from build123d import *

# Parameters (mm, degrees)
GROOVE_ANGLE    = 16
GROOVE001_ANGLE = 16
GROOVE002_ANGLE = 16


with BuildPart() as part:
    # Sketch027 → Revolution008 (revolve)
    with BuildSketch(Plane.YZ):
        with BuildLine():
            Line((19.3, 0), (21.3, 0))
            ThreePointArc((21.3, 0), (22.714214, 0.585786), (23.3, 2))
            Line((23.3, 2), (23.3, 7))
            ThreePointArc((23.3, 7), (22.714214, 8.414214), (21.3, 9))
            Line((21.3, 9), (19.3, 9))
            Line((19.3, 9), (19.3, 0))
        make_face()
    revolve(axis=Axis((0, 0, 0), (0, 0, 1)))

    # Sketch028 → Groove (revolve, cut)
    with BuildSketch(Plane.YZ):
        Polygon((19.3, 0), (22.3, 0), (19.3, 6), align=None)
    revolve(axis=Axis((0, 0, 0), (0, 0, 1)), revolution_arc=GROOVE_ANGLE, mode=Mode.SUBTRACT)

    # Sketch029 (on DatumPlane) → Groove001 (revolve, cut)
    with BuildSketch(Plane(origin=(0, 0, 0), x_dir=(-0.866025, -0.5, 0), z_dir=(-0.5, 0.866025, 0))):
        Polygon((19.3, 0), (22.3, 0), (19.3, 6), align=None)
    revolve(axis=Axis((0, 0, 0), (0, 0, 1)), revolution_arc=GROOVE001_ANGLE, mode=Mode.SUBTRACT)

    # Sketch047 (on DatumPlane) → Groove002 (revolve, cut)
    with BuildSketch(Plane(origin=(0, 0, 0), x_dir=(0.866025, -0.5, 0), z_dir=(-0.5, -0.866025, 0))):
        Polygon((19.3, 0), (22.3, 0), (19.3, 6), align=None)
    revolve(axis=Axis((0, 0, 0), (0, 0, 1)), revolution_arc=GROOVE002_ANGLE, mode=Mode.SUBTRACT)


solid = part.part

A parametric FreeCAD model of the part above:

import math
import FreeCAD as App
import Part
import Sketcher
from FreeCAD import Vector

doc = App.newDocument("Part")
body = doc.addObject("PartDesign::Body", "Body")

sketch1 = body.newObject("Sketcher::SketchObject", "Sketch")
sketch1.AttachmentSupport = (doc.getObject("YZ_Plane"), [""])
sketch1.MapMode = "FlatFace"
sketch1.addGeometry([
    Part.LineSegment(Vector(19.3, 0, 0), Vector(21.3, 0, 0)),
    Part.ArcOfCircle(Part.Circle(Vector(21.300001, 1.999999, 0), Vector(0, 0, 1), 1.999999), math.radians(-90.000043), math.radians(0.000043)),
    Part.LineSegment(Vector(23.3, 2, 0), Vector(23.3, 7, 0)),
    Part.ArcOfCircle(Part.Circle(Vector(21.300001, 7.000001, 0), Vector(0, 0, 1), 1.999999), math.radians(-0.000043), math.radians(90.000043)),
    Part.LineSegment(Vector(21.3, 9, 0), Vector(19.3, 9, 0)),
    Part.LineSegment(Vector(19.3, 9, 0), Vector(19.3, 0, 0)),
], False)
sketch1.addConstraint([
    Sketcher.Constraint("Tangent", 0, 2, 1, 1),
    Sketcher.Constraint("Tangent", 1, 2, 2, 1),
    Sketcher.Constraint("Tangent", 2, 2, 3, 1),
    Sketcher.Constraint("Tangent", 3, 2, 4, 1),
    Sketcher.Constraint("Coincident", 4, 2, 5, 1),
    Sketcher.Constraint("Coincident", 5, 2, 0, 1),
    Sketcher.Constraint("Horizontal", 0),
    Sketcher.Constraint("Vertical", 2),
    Sketcher.Constraint("Horizontal", 4),
    Sketcher.Constraint("Vertical", 5),
    Sketcher.Constraint("Equal", 1, 3),
    Sketcher.Constraint("PointOnObject", 0, 2, -1),
    Sketcher.Constraint("Radius", 1, 1.999999),
    Sketcher.Constraint("DistanceX", 0, 1, 0, 2, 2.0),
    Sketcher.Constraint("DistanceY", 2, 1, 2, 2, 5.0),
    Sketcher.Constraint("DistanceX", -1, 1, 1, 3, 21.300001),
])
revolution = body.newObject("PartDesign::Revolution", "Revolution")
revolution.Profile = sketch1
revolution.ReferenceAxis = (sketch1, ["V_Axis"])
revolution.Angle = 360

sketch2 = body.newObject("Sketcher::SketchObject", "Sketch001")
sketch2.AttachmentSupport = (doc.getObject("YZ_Plane"), [""])
sketch2.MapMode = "FlatFace"
sketch2.addGeometry([
    Part.LineSegment(Vector(19.3, 0, 0), Vector(22.3, 0, 0)),
    Part.LineSegment(Vector(22.3, 0, 0), Vector(19.3, 6, 0)),
    Part.LineSegment(Vector(19.3, 6, 0), Vector(19.3, 0, 0)),
], False)
sketch2.addConstraint([
    Sketcher.Constraint("Coincident", 0, 2, 1, 1),
    Sketcher.Constraint("Coincident", 1, 2, 2, 1),
    Sketcher.Constraint("Coincident", 2, 2, 0, 1),
    Sketcher.Constraint("Horizontal", 0),
    Sketcher.Constraint("Vertical", 2),
    Sketcher.Constraint("PointOnObject", 0, 2, -1),
    Sketcher.Constraint("DistanceX", 0, 1, 0, 2, 3.0),
    Sketcher.Constraint("DistanceY", 2, 2, 2, 1, 6.0),
    Sketcher.Constraint("DistanceX", -1, 1, 0, 2, 22.3),
])
groove = body.newObject("PartDesign::Groove", "Groove")
groove.Profile = sketch2
groove.ReferenceAxis = (sketch2, ["V_Axis"])
groove.Angle = 16

sketch3 = body.newObject("Sketcher::SketchObject", "Sketch002")
sketch3.Placement = App.Placement(Vector(0, 0, 0), App.Rotation(Vector(-0.866025303, -0.500000175, 0), Vector(0, 0, 1), Vector(-0.500000175, 0.866025303, 0), "ZXY"))
sketch3.addGeometry([
    Part.LineSegment(Vector(19.3, 0, 0), Vector(22.3, 0, 0)),
    Part.LineSegment(Vector(22.3, 0, 0), Vector(19.3, 6, 0)),
    Part.LineSegment(Vector(19.3, 6, 0), Vector(19.3, 0, 0)),
], False)
sketch3.addConstraint([
    Sketcher.Constraint("Coincident", 0, 2, 1, 1),
    Sketcher.Constraint("Coincident", 1, 2, 2, 1),
    Sketcher.Constraint("Coincident", 2, 2, 0, 1),
    Sketcher.Constraint("Horizontal", 0),
    Sketcher.Constraint("Vertical", 2),
    Sketcher.Constraint("PointOnObject", 0, 2, -1),
    Sketcher.Constraint("DistanceX", 0, 1, 0, 2, 3.0),
    Sketcher.Constraint("DistanceY", 2, 2, 2, 1, 6.0),
    Sketcher.Constraint("DistanceX", -1, 1, 0, 2, 22.3),
])
groove2 = body.newObject("PartDesign::Groove", "Groove001")
groove2.Profile = sketch3
groove2.ReferenceAxis = (sketch3, ["V_Axis"])
groove2.Angle = 16

sketch4 = body.newObject("Sketcher::SketchObject", "Sketch003")
sketch4.Placement = App.Placement(Vector(0, 0, 0), App.Rotation(Vector(0.866025303, -0.500000175, 0), Vector(0, 0, 1), Vector(-0.500000175, -0.866025303, 0), "ZXY"))
sketch4.addGeometry([
    Part.LineSegment(Vector(19.3, 0, 0), Vector(22.3, 0, 0)),
    Part.LineSegment(Vector(22.3, 0, 0), Vector(19.3, 6, 0)),
    Part.LineSegment(Vector(19.3, 6, 0), Vector(19.3, 0, 0)),
], False)
sketch4.addConstraint([
    Sketcher.Constraint("Coincident", 0, 2, 1, 1),
    Sketcher.Constraint("Coincident", 1, 2, 2, 1),
    Sketcher.Constraint("Coincident", 2, 2, 0, 1),
    Sketcher.Constraint("Horizontal", 0),
    Sketcher.Constraint("Vertical", 2),
    Sketcher.Constraint("PointOnObject", 0, 2, -1),
    Sketcher.Constraint("DistanceX", 0, 1, 0, 2, 3.0),
    Sketcher.Constraint("DistanceY", 2, 2, 2, 1, 6.0),
    Sketcher.Constraint("DistanceX", -1, 1, 0, 2, 22.3),
])
groove3 = body.newObject("PartDesign::Groove", "Groove002")
groove3.Profile = sketch4
groove3.ReferenceAxis = (sketch4, ["V_Axis"])
groove3.Angle = 16

doc.recompute()
